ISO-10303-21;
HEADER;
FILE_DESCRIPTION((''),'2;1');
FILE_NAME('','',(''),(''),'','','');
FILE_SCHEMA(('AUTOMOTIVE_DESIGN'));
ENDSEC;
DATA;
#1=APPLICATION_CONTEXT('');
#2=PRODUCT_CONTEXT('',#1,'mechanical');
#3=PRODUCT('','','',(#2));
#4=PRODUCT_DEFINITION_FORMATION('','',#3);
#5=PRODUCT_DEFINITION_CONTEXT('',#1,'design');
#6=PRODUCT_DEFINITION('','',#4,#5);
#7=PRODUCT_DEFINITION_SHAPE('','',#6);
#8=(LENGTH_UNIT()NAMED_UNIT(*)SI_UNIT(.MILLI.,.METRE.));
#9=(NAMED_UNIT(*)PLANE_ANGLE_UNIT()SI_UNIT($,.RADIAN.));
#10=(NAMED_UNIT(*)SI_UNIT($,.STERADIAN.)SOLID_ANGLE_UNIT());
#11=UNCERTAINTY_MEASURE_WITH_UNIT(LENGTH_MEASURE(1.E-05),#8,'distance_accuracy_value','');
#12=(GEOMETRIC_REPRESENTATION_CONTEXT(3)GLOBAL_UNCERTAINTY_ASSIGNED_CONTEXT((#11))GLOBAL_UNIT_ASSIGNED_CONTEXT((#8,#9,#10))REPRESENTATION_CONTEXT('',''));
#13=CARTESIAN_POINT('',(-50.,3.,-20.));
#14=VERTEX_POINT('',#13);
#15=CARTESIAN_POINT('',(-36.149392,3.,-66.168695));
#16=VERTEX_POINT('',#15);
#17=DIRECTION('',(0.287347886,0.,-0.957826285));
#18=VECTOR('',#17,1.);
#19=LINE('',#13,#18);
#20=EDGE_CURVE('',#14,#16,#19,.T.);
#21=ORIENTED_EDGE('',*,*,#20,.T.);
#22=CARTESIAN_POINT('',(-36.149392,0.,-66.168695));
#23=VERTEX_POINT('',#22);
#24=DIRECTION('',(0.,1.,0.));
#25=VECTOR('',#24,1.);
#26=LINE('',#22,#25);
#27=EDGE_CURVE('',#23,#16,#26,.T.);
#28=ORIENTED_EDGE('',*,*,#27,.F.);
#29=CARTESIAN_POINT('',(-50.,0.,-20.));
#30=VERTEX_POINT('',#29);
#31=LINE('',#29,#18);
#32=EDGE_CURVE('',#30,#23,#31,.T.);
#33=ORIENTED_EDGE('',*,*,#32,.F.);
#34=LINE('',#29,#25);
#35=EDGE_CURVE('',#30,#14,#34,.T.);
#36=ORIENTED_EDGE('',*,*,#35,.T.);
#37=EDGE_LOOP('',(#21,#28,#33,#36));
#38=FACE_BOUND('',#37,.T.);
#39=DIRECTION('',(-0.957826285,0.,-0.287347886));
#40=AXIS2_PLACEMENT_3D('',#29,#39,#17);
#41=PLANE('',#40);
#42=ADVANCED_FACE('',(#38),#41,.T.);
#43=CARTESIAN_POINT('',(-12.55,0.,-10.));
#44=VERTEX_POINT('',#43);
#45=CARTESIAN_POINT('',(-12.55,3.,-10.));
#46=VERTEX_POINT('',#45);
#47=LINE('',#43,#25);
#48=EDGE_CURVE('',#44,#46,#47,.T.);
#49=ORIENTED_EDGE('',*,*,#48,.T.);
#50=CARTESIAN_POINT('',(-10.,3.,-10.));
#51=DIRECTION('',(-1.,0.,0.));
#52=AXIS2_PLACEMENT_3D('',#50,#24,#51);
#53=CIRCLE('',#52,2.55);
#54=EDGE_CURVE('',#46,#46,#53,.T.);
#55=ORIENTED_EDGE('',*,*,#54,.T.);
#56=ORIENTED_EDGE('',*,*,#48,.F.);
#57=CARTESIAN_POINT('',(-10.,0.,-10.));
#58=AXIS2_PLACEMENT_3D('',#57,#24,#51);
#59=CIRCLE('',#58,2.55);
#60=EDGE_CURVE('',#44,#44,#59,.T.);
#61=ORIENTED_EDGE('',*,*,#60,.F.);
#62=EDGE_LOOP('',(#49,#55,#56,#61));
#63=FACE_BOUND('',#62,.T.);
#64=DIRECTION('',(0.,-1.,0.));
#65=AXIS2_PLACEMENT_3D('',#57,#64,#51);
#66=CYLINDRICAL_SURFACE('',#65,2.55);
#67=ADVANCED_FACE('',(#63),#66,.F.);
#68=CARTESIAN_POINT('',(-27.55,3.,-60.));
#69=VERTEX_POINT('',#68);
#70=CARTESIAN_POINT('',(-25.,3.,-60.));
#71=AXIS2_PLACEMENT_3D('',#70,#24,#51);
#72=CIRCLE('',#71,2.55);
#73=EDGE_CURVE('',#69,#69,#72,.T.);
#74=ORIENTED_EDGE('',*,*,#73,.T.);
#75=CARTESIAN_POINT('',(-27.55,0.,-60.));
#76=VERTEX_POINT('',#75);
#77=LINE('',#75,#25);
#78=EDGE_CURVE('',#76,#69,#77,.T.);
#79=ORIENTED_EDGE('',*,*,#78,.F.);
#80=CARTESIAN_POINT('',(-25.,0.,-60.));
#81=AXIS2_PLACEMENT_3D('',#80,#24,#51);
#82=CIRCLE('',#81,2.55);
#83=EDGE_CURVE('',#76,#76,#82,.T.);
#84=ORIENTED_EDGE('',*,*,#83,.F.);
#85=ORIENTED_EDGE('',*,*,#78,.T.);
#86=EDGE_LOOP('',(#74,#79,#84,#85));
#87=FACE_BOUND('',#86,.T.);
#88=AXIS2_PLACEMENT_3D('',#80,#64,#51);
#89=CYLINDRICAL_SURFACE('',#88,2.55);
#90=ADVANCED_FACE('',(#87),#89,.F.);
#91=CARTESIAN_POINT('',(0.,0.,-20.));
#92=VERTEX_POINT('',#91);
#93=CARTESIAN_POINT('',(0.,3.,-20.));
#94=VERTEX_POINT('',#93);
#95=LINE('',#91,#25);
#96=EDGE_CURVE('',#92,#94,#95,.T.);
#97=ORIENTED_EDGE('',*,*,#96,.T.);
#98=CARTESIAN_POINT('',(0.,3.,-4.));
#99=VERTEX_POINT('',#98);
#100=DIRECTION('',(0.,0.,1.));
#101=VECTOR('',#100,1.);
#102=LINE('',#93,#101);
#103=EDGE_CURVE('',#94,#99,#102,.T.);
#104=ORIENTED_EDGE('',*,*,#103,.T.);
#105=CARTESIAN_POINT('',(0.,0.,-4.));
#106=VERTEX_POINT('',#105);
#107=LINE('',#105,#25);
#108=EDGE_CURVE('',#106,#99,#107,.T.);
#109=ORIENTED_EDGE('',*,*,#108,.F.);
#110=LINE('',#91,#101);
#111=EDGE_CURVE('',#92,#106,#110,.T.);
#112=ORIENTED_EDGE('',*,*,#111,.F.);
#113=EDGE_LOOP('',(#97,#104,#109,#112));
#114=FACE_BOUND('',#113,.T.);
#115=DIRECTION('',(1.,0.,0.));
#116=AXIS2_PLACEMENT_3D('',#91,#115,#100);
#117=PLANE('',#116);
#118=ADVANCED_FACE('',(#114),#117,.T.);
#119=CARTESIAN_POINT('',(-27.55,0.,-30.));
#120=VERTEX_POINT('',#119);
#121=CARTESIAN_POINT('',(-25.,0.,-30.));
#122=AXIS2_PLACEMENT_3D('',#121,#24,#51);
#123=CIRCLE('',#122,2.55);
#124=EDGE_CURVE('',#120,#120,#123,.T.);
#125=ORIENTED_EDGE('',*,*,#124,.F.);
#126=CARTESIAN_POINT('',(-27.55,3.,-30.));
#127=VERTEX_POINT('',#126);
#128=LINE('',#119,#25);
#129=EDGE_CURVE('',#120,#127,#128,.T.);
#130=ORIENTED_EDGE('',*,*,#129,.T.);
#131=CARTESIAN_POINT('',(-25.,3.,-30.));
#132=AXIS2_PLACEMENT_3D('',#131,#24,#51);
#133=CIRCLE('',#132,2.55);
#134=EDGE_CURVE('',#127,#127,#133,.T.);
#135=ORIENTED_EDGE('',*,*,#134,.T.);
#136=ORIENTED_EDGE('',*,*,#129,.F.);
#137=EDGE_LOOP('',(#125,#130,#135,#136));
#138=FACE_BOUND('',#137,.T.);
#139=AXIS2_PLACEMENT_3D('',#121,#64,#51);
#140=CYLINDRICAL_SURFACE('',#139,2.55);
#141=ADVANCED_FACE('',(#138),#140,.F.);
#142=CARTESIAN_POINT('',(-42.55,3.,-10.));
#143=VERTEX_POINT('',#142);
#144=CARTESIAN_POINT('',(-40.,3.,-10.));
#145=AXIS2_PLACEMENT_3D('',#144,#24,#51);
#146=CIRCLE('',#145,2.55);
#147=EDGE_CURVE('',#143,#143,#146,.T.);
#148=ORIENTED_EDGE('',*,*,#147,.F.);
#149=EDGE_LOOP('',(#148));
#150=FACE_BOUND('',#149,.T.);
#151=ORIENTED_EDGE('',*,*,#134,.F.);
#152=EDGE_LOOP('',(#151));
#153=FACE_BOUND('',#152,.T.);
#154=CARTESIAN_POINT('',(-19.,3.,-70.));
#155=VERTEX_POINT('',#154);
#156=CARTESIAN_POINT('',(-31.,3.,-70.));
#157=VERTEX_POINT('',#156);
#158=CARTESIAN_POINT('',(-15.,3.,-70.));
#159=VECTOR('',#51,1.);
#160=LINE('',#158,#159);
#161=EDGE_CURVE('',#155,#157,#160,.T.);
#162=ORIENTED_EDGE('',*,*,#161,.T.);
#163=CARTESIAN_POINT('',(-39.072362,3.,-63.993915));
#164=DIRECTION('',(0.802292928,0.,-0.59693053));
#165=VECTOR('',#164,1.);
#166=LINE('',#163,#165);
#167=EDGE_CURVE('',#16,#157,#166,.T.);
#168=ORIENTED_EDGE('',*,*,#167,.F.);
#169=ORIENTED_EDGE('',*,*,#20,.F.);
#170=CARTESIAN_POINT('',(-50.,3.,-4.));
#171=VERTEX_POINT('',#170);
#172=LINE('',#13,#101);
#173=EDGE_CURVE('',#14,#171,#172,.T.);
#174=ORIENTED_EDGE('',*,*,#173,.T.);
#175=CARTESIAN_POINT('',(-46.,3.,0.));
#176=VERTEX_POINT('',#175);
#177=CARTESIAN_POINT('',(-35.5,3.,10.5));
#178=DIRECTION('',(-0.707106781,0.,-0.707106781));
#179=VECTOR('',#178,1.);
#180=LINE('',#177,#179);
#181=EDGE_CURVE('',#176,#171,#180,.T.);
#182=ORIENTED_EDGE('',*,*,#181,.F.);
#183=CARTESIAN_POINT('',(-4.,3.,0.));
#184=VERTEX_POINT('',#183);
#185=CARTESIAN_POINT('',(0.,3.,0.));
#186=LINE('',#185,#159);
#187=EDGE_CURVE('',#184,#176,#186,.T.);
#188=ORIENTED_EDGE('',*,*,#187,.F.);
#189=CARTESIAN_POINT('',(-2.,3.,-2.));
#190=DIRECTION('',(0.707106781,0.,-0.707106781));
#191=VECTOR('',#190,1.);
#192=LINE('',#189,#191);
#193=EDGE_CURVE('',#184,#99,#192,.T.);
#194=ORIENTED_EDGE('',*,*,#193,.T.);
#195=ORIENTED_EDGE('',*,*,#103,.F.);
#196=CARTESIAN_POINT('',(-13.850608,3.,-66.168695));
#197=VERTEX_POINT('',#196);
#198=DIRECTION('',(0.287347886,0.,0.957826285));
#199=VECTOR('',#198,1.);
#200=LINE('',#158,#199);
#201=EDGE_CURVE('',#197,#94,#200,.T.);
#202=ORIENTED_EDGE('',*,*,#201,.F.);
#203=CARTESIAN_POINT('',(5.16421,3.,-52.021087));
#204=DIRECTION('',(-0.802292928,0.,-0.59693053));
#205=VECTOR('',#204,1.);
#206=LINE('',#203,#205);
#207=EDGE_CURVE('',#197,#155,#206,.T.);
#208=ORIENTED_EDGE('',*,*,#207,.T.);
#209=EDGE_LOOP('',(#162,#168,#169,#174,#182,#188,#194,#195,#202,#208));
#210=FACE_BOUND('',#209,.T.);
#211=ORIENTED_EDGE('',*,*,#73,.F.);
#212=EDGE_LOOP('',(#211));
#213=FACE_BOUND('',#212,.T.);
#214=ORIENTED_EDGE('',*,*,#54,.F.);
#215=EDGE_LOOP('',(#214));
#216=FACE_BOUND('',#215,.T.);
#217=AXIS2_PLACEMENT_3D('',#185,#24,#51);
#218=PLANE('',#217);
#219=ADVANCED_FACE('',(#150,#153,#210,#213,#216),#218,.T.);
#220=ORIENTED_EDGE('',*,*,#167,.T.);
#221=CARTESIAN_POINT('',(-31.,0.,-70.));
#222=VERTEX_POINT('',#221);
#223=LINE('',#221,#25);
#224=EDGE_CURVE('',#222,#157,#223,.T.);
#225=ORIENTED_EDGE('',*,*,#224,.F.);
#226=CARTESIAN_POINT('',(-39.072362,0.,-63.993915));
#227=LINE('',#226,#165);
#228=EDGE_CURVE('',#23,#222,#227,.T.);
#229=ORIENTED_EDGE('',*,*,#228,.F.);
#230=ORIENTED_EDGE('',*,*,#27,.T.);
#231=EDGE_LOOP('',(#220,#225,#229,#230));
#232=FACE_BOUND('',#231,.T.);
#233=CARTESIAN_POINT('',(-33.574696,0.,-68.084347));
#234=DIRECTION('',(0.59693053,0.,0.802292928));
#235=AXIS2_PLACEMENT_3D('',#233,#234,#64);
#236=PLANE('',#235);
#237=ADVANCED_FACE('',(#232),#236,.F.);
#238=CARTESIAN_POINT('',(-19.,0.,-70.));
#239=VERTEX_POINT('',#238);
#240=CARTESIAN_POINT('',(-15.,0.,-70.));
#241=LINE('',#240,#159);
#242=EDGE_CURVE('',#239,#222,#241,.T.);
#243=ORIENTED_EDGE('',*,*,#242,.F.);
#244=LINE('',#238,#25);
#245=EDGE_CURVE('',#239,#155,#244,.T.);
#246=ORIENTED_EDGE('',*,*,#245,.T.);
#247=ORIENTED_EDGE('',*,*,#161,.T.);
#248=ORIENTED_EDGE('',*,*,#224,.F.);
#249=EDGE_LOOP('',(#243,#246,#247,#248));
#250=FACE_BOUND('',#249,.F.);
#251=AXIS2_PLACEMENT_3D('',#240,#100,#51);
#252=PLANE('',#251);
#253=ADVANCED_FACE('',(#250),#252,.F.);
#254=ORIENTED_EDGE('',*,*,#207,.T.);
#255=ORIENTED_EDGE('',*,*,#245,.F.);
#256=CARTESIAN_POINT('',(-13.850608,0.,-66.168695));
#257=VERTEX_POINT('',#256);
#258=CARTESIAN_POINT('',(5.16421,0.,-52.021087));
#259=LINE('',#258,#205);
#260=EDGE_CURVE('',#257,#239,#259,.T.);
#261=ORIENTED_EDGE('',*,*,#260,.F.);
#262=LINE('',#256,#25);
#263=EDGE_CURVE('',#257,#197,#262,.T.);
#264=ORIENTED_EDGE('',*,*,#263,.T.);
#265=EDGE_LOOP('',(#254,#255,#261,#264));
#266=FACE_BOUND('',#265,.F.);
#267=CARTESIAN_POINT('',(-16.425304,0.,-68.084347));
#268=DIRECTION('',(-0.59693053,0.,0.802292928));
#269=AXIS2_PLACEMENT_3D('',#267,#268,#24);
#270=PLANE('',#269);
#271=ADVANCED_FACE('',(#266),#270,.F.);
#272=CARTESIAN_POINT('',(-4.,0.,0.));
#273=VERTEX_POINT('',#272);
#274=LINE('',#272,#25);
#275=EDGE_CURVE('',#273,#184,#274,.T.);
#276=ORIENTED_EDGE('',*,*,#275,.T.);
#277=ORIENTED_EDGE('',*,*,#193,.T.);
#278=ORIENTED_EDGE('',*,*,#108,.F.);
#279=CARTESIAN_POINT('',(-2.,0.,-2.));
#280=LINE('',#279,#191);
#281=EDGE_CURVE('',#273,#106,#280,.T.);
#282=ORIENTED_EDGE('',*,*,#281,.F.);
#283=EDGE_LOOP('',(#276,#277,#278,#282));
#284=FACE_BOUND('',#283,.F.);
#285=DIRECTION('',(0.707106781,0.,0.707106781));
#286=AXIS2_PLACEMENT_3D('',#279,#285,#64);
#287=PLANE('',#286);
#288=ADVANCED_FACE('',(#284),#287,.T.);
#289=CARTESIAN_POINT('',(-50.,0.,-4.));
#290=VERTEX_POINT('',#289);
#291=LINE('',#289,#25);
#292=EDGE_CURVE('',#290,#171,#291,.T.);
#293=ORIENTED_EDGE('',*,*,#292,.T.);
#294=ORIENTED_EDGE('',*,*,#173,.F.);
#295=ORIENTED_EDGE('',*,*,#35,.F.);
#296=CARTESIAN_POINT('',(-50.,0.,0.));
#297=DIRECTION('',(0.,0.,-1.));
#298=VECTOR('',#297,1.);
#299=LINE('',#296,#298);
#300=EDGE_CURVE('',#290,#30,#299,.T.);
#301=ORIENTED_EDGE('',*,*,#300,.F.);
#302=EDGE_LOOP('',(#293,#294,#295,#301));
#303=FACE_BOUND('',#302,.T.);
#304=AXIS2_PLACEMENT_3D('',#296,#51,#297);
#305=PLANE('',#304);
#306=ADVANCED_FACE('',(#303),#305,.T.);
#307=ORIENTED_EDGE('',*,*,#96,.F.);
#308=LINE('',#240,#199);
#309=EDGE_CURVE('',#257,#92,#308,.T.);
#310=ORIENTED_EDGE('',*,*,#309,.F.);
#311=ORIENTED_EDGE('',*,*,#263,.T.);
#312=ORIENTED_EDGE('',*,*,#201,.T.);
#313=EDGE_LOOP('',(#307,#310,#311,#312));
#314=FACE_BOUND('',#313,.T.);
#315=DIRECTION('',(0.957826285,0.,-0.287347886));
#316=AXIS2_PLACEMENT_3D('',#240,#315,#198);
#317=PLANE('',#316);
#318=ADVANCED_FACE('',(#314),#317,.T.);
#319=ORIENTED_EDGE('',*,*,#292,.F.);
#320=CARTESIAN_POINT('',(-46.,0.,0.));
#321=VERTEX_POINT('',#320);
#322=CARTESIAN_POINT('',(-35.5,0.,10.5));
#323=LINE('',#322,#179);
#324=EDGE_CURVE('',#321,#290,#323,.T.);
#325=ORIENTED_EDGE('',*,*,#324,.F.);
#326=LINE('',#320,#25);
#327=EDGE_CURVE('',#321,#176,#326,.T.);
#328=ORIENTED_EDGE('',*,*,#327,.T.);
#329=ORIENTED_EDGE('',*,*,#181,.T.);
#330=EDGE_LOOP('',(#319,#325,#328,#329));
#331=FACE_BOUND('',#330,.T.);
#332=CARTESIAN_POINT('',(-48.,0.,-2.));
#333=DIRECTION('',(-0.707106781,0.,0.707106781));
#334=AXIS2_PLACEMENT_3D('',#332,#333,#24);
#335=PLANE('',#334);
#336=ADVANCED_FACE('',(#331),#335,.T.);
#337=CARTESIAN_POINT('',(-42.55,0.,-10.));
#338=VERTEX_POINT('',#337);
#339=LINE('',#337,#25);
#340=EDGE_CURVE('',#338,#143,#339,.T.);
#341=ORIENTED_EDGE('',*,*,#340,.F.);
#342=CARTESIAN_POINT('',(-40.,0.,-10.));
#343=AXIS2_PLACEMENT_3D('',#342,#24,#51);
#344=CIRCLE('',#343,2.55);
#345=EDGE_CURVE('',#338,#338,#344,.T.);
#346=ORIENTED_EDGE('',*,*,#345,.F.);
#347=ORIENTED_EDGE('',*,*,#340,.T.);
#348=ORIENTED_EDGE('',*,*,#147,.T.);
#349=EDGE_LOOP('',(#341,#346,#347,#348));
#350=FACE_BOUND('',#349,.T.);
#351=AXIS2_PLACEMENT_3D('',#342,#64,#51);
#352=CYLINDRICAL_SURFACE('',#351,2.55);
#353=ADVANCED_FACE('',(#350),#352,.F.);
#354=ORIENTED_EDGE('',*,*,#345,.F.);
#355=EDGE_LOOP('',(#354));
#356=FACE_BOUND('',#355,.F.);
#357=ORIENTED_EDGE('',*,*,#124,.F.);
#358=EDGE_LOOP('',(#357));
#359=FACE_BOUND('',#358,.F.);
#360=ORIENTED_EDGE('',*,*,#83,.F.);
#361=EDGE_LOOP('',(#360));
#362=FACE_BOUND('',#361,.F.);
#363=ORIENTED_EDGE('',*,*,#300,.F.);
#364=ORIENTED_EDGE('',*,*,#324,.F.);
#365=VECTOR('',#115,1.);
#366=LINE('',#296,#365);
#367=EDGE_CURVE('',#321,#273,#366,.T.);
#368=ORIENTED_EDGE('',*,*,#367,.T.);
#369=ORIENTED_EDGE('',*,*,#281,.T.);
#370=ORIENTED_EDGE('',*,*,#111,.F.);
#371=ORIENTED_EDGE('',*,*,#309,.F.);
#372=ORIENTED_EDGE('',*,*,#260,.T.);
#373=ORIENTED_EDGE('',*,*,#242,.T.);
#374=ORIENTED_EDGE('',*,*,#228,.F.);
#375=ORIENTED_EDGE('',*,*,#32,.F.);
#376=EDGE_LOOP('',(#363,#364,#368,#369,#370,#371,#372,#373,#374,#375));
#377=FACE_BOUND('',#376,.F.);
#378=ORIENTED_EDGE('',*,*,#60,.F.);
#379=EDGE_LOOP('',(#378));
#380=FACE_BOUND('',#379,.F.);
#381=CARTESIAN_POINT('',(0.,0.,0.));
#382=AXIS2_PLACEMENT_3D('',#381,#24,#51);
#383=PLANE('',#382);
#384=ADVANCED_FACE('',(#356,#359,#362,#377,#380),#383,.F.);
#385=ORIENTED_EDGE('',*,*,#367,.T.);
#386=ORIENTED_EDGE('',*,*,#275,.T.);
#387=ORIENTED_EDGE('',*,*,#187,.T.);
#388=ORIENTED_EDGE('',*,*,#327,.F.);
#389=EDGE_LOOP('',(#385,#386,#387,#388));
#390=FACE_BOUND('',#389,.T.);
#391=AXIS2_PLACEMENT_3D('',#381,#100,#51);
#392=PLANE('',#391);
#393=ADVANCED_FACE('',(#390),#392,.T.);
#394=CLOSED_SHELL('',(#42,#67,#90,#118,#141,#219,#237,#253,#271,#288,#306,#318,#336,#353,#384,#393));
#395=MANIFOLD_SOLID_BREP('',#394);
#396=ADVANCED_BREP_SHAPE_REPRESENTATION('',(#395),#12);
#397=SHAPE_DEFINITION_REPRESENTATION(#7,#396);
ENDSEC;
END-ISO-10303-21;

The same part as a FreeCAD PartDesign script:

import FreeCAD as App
import Part
import Sketcher
from FreeCAD import Vector


def edges_at(feature, points):
    """Names of the edges that pass closest to the given points."""
    edges = feature.Shape.Edges
    near = lambda p: min(range(len(edges)), key=lambda i: edges[i].distToShape(Part.Vertex(*p))[0])
    return sorted({f"Edge{near(p) + 1}" for p in points})

doc = App.newDocument("Part")
params = doc.addObject("Spreadsheet::Sheet", "Params")
for row, (alias, value) in enumerate([
    ("sketch1_diameter", "5.1 mm"),
    ("sketch1_width", "20 mm"),
    ("sketch1_width2", "50 mm"),
    ("pad1_length", "3 mm"),
    ("chamfer_size", "4 mm"),
    ("chamfer2_size", "4 mm"),
], start=1):
    params.set(f"A{row}", alias)
    params.set(f"B{row}", "=" + value)
    params.setAlias(f"B{row}", alias)

body = doc.addObject("PartDesign::Body", "Body")

# Sketch on XZ plane
sketch1 = doc.addObject("Sketcher::SketchObject", "Sketch")
body.addObject(sketch1)
sketch1.AttachmentSupport = (doc.XZ_Plane, [""])
sketch1.MapMode = "FlatFace"
sketch1.addGeometry([
    Part.LineSegment(Vector(0, 0, 0), Vector(0, -20, 0)),  # 0
    Part.LineSegment(Vector(0, -20, 0), Vector(-15, -70, 0)),  # 1
    Part.LineSegment(Vector(-15, -70, 0), Vector(-35, -70, 0)),  # 2
    Part.LineSegment(Vector(-35, -70, 0), Vector(-50, -20, 0)),  # 3
    Part.LineSegment(Vector(-50, -20, 0), Vector(-50, 0, 0)),  # 4
    Part.LineSegment(Vector(-50, 0, 0), Vector(0, 0, 0)),  # 5
    Part.Circle(Vector(-10, -10, 0), Vector(0, 0, 1), 2.55),  # 6
    Part.Circle(Vector(-40, -10, 0), Vector(0, 0, 1), 2.55),  # 7
    Part.Circle(Vector(-25, -30, 0), Vector(0, 0, 1), 2.55),  # 8
    Part.Circle(Vector(-25, -60, 0), Vector(0, 0, 1), 2.55),  # 9
], False)
sketch1.addConstraint([
    Sketcher.Constraint("Coincident", 0, 2, 1, 1),
    Sketcher.Constraint("Coincident", 1, 2, 2, 1),
    Sketcher.Constraint("Coincident", 2, 2, 3, 1),
    Sketcher.Constraint("Coincident", 3, 2, 4, 1),
    Sketcher.Constraint("Coincident", 4, 2, 5, 1),
    Sketcher.Constraint("Coincident", 5, 2, 0, 1),
    Sketcher.Constraint("Vertical", 0),
    Sketcher.Constraint("Horizontal", 2),
    Sketcher.Constraint("Vertical", 4),
    Sketcher.Constraint("Horizontal", 5),
    Sketcher.Constraint("Coincident", 5, 2, -1, 1),
    Sketcher.Constraint("Equal", 6, 7),
    Sketcher.Constraint("Equal", 7, 8),
    Sketcher.Constraint("Equal", 8, 9),
    Sketcher.Constraint("Horizontal", 6, 3, 7, 3),
    Sketcher.Constraint("Horizontal", 0, 2, 3, 2),
    Sketcher.Constraint("Vertical", 8, 3, 9, 3),
    Sketcher.Constraint("Equal", 2, 0),
    Sketcher.Constraint("Equal", 1, 3),
    Sketcher.Constraint("Diameter", 6, 5.1),
    Sketcher.Constraint("DistanceX", 2, 2, 2, 1, 20.0),
    Sketcher.Constraint("DistanceX", 5, 1, 5, 2, 50.0),
    Sketcher.Constraint("DistanceX", 6, 3, -1, 1, 10.0),
    Sketcher.Constraint("DistanceY", 6, 3, -1, 1, 10.0),
    Sketcher.Constraint("DistanceY", 8, 3, 6, 3, 20.0),
    Sketcher.Constraint("DistanceY", 9, 3, 6, 3, 50.0),
    Sketcher.Constraint("DistanceX", 9, 3, 1, 2, 10.0),
    Sketcher.Constraint("DistanceY", 1, 2, 9, 3, 10.0),
    Sketcher.Constraint("DistanceX", 3, 2, 7, 3, 10.0),
])
sketch1.setExpression("Constraints[19]", "Params.sketch1_diameter")
sketch1.setExpression("Constraints[20]", "Params.sketch1_width")
sketch1.setExpression("Constraints[21]", "Params.sketch1_width2")
pad1 = doc.addObject("PartDesign::Pad", "Pad")
body.addObject(pad1)
pad1.Profile = sketch1
pad1.setExpression("Length", "Params.pad1_length")
pad1.Reversed = True
doc.recompute()

chamfer = doc.addObject("PartDesign::Chamfer", "Chamfer")
body.addObject(chamfer)
chamfer.Base = (pad1, edges_at(pad1, [(0, 1.5, 0), (-50, 1.5, 0)]))
chamfer.setExpression("Size", "Params.chamfer_size")
doc.recompute()

chamfer2 = doc.addObject("PartDesign::Chamfer", "Chamfer001")
body.addObject(chamfer2)
chamfer2.Base = (chamfer, edges_at(chamfer, [(-15, 1.5, -70), (-35, 1.5, -70)]))
chamfer2.setExpression("Size", "Params.chamfer2_size")

doc.recompute()
